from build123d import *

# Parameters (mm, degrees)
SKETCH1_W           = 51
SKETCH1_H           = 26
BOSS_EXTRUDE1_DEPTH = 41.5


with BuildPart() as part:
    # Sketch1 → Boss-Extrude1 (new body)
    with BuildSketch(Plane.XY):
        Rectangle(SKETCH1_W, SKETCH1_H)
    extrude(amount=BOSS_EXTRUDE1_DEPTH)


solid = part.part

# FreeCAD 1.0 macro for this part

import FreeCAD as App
import Part
import Sketcher
from FreeCAD import Vector
Q = App.Units.Quantity


def add_polygon(sketch, points):
    """Adds a closed chain of lines whose ends are joined by coincident constraints."""
    first, n = sketch.GeometryCount, len(points)
    for a, b in zip(points, points[1:] + points[:1]):
        sketch.addGeometry(Part.LineSegment(App.Vector(*a, 0), App.Vector(*b, 0)), False)
    for i in range(n):
        sketch.addConstraint(Sketcher.Constraint("Coincident", first + i, 2, first + (i + 1) % n, 1))

doc = App.newDocument("Part")
body = doc.addObject("PartDesign::Body", "Body")

# Sketch on XY plane
sketch1 = body.newObject("Sketcher::SketchObject", "Sketch")
sketch1.AttachmentSupport = (doc.getObject("XY_Plane"), [""])
sketch1.MapMode = "FlatFace"
add_polygon(sketch1, [(-26, 13), (-26, -13), (26, -13), (26, 13)])  # lines 0-3
sketch1.addConstraint([
    Sketcher.Constraint("Vertical", 0),
    Sketcher.Constraint("Horizontal", 1),
    Sketcher.Constraint("Vertical", 2),
    Sketcher.Constraint("Horizontal", 3),
    Sketcher.Constraint("Symmetric", 0, 2, 2, 2, -1, 1),
    Sketcher.Constraint("DistanceX", 1, 1, 1, 2, Q("51 mm")),
    Sketcher.Constraint("DistanceY", 0, 2, 0, 1, Q("26 mm")),
])
pad1 = body.newObject("PartDesign::Pad", "Pad")
pad1.Profile = sketch1
pad1.Length = 41.5

doc.recompute()
